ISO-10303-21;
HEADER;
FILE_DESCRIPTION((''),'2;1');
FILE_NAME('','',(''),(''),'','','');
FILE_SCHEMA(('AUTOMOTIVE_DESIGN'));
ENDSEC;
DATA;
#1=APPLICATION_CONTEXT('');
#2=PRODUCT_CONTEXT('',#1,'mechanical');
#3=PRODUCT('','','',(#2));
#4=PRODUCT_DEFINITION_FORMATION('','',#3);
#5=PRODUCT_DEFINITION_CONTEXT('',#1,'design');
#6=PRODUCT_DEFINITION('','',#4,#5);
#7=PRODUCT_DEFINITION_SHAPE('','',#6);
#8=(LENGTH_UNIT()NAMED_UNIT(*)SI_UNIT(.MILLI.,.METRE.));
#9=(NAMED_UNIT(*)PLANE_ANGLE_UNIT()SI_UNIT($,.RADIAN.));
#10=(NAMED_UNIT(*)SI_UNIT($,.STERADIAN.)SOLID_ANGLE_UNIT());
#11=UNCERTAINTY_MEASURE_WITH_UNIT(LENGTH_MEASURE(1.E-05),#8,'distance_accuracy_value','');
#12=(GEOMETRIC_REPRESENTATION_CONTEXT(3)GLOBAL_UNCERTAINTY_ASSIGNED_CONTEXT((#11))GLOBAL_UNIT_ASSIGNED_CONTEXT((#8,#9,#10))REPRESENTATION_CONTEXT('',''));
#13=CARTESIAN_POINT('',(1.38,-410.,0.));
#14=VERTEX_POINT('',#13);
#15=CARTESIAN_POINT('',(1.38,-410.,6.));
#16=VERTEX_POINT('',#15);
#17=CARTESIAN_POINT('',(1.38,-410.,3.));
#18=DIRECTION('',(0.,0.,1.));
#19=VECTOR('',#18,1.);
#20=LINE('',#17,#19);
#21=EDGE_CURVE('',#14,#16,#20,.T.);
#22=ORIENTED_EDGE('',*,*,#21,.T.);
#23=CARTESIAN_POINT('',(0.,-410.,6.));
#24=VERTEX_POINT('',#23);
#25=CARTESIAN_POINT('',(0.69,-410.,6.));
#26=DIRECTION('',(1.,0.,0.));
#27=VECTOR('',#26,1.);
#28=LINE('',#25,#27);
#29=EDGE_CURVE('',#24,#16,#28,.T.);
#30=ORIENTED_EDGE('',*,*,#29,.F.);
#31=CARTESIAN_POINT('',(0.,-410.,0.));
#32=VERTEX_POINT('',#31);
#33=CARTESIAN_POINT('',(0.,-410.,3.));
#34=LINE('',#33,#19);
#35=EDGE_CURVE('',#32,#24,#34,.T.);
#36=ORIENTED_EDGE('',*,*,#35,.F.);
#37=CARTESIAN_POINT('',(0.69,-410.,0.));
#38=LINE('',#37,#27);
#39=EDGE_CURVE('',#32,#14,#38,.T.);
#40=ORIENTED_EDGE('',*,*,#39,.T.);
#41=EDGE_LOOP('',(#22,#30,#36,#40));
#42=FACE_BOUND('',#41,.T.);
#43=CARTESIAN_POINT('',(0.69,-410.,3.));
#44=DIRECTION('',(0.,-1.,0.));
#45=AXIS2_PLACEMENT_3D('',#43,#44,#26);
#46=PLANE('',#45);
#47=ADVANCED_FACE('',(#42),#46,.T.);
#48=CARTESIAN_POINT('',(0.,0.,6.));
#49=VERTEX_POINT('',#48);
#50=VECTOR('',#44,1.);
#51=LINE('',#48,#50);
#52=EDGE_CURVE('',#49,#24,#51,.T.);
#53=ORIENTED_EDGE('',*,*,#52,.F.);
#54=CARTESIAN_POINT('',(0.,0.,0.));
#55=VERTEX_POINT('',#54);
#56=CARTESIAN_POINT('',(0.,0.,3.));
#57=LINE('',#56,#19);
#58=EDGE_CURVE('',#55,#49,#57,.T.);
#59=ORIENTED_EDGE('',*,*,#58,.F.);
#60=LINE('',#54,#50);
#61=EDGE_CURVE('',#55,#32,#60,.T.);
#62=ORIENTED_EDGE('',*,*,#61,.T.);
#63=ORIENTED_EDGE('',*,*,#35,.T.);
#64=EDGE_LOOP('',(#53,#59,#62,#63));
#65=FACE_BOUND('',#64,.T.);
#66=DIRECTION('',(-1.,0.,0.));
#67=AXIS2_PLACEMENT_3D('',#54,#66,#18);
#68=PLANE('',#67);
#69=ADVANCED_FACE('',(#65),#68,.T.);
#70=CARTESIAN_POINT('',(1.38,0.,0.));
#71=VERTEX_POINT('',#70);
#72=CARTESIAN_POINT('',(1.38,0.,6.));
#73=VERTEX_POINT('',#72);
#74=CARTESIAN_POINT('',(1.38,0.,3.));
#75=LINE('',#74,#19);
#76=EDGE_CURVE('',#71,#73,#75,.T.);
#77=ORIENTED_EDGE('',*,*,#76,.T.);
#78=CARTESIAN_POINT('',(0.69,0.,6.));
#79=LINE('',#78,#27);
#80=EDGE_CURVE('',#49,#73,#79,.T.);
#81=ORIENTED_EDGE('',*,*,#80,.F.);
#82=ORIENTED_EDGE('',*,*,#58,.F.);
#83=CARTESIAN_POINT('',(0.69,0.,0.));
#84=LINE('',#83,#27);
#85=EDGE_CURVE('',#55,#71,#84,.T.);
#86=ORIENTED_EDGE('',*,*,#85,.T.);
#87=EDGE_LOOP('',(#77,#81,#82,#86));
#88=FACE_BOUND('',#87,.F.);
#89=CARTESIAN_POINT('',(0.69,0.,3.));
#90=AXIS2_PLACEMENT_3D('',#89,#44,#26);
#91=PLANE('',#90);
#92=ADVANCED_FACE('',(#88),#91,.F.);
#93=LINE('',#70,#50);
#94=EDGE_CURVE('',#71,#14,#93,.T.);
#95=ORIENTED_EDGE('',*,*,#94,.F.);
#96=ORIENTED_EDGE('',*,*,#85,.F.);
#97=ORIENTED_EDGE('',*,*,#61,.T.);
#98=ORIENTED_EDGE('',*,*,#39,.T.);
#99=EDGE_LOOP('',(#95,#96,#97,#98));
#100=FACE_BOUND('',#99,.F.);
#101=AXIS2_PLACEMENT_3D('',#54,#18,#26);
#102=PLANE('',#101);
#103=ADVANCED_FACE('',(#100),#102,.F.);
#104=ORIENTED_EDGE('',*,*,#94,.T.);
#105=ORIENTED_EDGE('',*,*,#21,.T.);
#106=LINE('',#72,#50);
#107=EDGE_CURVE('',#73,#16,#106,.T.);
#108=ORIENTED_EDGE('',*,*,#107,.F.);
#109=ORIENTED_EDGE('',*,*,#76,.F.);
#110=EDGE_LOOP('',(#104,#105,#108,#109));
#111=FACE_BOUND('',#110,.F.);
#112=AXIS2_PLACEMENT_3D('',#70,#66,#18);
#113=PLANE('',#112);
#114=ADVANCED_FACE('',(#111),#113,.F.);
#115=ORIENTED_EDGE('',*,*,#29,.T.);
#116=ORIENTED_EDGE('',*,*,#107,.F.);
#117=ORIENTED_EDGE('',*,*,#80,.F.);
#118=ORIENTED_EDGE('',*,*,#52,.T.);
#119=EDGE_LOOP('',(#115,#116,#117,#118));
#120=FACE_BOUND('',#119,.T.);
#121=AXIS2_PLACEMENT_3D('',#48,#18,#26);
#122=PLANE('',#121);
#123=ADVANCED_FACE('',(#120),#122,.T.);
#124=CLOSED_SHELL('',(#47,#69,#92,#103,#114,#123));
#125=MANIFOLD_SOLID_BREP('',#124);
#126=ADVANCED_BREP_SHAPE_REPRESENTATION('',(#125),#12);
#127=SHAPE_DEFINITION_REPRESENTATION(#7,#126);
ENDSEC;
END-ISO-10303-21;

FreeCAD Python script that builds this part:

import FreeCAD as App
import Part
import Sketcher
from FreeCAD import Vector
Q = App.Units.Quantity

doc = App.newDocument("Part")
body = doc.addObject("PartDesign::Body", "Body")

sketch1 = body.newObject("Sketcher::SketchObject", "Sketch")
sketch1.AttachmentSupport = (doc.getObject("XZ_Plane"), [""])
sketch1.MapMode = "FlatFace"
sketch1.addGeometry([
    Part.LineSegment(Vector(0, 6, 0), Vector(0, 0, 0)),
    Part.LineSegment(Vector(0, 0, 0), Vector(1.4, 0, 0)),
    Part.LineSegment(Vector(1.4, 0, 0), Vector(1.4, 6, 0)),
    Part.LineSegment(Vector(1.4, 6, 0), Vector(0, 6, 0)),
], False)
sketch1.addConstraint([
    Sketcher.Constraint("Coincident", 0, 2, 1, 1),
    Sketcher.Constraint("Coincident", 1, 2, 2, 1),
    Sketcher.Constraint("Coincident", 2, 2, 3, 1),
    Sketcher.Constraint("Coincident", 3, 2, 0, 1),
    Sketcher.Constraint("Vertical", 0),
    Sketcher.Constraint("Horizontal", 1),
    Sketcher.Constraint("Vertical", 2),
    Sketcher.Constraint("Horizontal", 3),
    Sketcher.Constraint("Coincident", 0, 2, -1, 1),
    Sketcher.Constraint("DistanceY", 0, 2, 0, 1, Q("6 mm")),
    Sketcher.Constraint("DistanceX", 1, 1, 1, 2, Q("1.38 mm")),
])
pad1 = body.newObject("PartDesign::Pad", "Pad")
pad1.Profile = sketch1
pad1.Length = 410

doc.recompute()
